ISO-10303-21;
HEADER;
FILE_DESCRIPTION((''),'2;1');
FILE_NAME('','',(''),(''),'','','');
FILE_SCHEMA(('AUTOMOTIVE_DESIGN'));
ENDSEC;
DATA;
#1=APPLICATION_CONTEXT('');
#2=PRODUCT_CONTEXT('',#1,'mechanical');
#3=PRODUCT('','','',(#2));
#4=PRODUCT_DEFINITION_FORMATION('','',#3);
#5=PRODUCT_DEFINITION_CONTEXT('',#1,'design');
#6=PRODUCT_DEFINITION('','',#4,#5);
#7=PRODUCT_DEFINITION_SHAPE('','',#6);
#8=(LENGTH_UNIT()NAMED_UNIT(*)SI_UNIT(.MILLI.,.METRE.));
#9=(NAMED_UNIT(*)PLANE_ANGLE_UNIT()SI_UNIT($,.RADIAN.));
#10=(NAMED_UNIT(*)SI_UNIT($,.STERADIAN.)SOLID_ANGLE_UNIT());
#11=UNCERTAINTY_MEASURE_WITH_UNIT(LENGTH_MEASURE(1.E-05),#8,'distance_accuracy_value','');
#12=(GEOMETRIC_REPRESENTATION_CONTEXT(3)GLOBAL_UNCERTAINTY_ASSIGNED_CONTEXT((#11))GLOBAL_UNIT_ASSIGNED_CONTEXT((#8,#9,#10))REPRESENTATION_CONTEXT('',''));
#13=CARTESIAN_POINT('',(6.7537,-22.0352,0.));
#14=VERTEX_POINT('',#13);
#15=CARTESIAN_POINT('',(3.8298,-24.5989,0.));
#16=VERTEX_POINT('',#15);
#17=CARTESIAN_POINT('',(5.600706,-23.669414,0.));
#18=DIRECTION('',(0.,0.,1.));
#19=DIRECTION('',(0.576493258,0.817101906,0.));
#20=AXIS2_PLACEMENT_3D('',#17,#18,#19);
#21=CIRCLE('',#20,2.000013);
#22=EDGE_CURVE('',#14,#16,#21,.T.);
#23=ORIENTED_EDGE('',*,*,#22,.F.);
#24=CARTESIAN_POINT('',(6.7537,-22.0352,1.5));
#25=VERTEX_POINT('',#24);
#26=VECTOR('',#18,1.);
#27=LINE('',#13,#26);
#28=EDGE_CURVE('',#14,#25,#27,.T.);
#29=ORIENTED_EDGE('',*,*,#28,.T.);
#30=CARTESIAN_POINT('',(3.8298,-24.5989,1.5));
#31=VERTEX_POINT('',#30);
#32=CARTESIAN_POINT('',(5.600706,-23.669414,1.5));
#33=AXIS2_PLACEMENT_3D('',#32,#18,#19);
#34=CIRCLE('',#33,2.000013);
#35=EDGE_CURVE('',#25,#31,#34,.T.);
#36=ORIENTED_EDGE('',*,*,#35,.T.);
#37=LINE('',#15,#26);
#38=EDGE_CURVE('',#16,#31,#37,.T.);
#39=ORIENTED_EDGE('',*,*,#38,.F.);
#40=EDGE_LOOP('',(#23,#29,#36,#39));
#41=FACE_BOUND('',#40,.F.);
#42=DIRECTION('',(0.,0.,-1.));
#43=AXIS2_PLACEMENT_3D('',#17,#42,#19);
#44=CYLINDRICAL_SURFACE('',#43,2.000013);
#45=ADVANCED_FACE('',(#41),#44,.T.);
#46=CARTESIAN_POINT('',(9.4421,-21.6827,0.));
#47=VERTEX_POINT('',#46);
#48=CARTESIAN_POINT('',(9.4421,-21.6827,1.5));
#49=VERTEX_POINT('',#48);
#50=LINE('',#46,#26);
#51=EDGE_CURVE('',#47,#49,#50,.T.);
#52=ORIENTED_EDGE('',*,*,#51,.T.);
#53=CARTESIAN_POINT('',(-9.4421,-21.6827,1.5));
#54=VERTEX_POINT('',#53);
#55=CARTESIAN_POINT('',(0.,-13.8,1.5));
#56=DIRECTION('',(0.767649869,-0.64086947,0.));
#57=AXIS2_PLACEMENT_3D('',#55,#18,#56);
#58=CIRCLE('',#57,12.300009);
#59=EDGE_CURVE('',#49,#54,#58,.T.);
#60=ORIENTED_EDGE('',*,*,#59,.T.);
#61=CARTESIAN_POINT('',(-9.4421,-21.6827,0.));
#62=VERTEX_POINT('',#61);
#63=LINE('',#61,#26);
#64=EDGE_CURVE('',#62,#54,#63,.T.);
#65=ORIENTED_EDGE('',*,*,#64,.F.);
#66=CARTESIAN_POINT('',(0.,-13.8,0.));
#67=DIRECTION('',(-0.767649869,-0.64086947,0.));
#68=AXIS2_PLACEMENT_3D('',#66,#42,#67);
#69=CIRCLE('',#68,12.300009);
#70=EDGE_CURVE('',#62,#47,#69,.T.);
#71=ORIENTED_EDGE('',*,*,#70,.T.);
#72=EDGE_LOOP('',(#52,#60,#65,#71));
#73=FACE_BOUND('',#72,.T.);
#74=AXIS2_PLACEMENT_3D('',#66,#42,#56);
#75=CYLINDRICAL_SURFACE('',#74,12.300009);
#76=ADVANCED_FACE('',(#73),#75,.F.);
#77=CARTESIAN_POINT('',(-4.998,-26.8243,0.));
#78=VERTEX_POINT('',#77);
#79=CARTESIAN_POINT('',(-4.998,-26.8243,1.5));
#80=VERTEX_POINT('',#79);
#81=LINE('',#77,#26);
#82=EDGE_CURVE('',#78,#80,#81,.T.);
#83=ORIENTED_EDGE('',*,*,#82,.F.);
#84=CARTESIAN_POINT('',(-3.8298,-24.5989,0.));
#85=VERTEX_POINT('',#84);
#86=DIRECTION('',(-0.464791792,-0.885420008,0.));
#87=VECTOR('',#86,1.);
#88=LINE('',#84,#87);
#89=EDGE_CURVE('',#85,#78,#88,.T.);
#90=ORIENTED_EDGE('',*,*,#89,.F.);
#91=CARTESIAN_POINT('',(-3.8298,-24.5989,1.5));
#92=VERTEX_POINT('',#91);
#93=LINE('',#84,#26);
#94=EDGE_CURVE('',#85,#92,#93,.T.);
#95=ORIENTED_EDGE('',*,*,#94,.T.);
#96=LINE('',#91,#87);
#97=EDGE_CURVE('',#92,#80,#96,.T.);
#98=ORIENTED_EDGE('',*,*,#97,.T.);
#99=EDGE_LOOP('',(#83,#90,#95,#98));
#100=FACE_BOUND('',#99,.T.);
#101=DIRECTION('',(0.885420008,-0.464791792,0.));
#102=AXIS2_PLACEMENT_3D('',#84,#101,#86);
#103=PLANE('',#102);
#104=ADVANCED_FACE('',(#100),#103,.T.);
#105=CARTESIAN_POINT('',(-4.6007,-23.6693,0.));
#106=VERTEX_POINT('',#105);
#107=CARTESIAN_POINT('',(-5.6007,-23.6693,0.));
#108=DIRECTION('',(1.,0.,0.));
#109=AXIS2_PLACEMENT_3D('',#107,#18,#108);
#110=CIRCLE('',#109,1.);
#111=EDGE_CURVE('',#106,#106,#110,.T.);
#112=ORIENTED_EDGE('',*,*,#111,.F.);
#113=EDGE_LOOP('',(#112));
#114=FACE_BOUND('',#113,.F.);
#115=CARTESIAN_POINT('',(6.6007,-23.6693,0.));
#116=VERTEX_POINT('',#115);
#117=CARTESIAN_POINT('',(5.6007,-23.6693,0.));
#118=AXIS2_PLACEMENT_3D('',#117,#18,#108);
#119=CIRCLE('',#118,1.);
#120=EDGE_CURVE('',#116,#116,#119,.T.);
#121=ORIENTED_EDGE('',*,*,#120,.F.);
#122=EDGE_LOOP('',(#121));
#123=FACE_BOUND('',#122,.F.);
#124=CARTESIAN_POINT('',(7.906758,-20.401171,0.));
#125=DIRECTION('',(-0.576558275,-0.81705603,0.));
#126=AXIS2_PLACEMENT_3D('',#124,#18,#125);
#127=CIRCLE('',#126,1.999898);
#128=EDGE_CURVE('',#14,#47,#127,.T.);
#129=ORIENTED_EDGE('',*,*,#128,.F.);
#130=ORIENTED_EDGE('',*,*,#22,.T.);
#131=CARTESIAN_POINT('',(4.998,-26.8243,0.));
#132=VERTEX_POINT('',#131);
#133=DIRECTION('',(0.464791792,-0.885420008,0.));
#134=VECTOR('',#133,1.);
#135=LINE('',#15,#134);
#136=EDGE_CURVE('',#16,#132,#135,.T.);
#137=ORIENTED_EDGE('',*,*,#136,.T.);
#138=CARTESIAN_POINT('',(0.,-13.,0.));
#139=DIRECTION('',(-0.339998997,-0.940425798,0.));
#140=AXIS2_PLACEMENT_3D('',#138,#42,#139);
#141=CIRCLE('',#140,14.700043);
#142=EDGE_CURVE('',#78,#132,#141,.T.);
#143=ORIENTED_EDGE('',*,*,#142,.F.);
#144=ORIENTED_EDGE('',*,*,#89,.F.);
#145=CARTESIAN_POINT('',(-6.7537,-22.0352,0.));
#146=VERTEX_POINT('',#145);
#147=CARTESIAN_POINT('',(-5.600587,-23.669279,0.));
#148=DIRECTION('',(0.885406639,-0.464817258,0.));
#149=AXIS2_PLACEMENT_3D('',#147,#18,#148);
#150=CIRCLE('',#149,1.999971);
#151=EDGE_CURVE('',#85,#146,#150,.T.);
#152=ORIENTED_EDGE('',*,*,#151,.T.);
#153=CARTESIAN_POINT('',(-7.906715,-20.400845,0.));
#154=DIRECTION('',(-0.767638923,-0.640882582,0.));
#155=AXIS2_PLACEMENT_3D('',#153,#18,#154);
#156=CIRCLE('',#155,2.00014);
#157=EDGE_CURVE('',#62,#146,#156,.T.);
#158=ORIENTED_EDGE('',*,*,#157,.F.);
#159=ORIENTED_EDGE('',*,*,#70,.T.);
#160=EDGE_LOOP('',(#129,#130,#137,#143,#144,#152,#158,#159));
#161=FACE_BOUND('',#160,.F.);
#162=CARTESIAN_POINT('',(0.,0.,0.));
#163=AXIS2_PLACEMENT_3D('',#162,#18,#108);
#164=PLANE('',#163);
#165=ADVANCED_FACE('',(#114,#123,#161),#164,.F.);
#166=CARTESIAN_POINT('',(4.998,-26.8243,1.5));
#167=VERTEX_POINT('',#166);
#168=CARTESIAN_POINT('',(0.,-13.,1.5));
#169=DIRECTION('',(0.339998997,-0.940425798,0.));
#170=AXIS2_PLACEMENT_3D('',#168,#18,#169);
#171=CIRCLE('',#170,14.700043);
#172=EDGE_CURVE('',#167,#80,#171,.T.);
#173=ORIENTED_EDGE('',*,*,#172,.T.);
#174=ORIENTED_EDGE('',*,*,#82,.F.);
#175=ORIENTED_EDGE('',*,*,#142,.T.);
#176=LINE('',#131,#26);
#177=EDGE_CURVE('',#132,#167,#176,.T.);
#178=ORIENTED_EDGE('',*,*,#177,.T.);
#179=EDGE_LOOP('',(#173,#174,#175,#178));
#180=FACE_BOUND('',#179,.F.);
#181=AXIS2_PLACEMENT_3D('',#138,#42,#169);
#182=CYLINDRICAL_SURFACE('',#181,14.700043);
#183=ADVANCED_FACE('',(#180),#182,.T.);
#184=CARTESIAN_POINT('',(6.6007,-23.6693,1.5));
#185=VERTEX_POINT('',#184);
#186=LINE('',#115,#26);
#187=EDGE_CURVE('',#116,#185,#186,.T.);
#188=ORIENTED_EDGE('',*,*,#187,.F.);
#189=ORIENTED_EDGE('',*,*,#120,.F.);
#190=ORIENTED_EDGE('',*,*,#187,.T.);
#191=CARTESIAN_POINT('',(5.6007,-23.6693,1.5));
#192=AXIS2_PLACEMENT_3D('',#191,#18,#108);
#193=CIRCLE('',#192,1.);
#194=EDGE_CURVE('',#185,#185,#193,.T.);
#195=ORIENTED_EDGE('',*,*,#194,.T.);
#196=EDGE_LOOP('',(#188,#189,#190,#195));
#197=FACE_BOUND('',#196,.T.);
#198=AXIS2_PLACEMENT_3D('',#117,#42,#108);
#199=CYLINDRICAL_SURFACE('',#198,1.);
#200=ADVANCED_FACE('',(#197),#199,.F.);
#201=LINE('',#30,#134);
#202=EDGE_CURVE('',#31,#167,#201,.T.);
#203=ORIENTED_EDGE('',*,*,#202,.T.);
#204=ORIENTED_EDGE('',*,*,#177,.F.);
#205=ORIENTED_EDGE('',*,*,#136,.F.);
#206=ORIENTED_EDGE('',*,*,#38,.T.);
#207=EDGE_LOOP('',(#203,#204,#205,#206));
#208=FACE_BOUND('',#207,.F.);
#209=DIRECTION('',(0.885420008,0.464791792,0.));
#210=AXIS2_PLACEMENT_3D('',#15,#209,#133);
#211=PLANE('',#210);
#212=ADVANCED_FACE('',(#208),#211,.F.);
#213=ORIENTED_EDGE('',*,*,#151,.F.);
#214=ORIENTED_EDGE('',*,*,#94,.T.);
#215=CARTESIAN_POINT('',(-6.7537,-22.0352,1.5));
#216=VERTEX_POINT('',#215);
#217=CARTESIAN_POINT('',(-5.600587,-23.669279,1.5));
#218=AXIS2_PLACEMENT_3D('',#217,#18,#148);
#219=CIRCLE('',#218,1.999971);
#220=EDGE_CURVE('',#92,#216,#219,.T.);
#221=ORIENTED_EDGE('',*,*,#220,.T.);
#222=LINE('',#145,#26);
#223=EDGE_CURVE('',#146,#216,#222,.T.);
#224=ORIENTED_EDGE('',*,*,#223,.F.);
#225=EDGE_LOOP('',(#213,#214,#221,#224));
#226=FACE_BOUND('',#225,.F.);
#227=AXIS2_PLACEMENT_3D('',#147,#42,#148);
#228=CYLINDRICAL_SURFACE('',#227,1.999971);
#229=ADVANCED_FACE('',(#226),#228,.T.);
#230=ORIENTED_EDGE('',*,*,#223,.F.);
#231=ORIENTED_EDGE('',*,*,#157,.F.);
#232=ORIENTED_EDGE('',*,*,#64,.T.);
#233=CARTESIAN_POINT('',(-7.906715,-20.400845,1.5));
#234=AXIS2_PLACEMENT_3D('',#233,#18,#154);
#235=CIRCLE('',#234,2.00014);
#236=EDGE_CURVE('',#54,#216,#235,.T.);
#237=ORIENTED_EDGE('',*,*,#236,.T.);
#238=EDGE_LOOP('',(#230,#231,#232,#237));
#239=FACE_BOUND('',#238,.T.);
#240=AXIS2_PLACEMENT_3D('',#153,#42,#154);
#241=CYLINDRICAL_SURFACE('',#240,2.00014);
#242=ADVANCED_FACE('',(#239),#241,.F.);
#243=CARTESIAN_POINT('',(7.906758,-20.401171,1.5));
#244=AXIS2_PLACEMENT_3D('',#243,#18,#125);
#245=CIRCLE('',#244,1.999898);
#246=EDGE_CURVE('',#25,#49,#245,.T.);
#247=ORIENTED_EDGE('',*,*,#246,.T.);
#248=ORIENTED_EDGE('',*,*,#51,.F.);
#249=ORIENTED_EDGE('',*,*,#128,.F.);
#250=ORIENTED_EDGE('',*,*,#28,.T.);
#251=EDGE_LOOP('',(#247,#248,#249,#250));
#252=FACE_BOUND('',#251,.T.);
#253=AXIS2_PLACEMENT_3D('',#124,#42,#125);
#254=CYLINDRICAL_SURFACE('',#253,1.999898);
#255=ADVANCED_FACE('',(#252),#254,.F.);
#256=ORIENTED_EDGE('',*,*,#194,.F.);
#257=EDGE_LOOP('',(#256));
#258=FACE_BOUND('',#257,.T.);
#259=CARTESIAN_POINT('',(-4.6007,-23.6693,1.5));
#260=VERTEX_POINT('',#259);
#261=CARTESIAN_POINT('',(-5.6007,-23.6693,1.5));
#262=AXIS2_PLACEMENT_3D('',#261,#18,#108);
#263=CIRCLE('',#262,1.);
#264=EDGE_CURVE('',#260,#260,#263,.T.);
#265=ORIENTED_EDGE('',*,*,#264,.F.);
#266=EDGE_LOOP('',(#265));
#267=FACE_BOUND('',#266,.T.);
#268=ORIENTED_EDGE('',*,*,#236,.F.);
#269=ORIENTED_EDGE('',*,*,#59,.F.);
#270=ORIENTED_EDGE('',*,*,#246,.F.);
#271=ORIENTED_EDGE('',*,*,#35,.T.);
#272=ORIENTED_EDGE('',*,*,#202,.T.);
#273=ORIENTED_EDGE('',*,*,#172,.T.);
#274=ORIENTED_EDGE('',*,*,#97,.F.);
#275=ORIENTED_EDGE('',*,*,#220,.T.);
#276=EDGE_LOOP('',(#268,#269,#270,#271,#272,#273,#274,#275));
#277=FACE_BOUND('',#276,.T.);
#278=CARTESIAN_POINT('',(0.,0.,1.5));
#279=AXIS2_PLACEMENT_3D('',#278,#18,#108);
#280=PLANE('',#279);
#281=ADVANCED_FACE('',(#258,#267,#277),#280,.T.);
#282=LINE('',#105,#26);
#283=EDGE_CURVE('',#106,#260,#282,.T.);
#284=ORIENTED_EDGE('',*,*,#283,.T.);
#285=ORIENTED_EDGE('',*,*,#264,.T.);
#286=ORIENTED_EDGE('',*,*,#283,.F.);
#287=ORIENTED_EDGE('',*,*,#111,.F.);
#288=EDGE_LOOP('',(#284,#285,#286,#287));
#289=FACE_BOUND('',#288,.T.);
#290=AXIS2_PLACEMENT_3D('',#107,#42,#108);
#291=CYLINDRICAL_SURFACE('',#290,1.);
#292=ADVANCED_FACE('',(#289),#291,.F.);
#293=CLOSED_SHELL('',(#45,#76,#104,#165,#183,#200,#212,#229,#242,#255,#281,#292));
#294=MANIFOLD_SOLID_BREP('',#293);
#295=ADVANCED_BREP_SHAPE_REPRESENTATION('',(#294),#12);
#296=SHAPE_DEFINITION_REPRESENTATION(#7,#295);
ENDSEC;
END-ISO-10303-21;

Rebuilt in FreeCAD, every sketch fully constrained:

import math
import FreeCAD as App
import Part
import Sketcher
from FreeCAD import Vector

doc = App.newDocument("Part")
body = doc.addObject("PartDesign::Body", "Body")

# Sketch on XY plane
sketch1 = body.newObject("Sketcher::SketchObject", "Sketch")
sketch1.AttachmentSupport = (doc.getObject("XY_Plane"), [""])
sketch1.MapMode = "FlatFace"
sketch1.addGeometry([
    Part.ArcOfCircle(Part.Circle(Vector(7.9, -20.4, 0), Vector(0, 0, 1), 2), math.radians(-125), math.radians(-40)),  # 0
    Part.ArcOfCircle(Part.Circle(Vector(5.6, -23.7, 0), Vector(0, 0, 1), 2), math.radians(55), math.radians(208)),  # 1
    Part.LineSegment(Vector(3.8, -24.6, 0), Vector(5, -26.8, 0)),  # 2
    Part.ArcOfCircle(Part.Circle(Vector(0, -13, 0), Vector(0, 0, 1), 14.7), math.radians(-70), math.radians(250)),  # 3
    Part.LineSegment(Vector(-5, -26.8, 0), Vector(-3.8, -24.6, 0)),  # 4
    Part.ArcOfCircle(Part.Circle(Vector(-5.6, -23.7, 0), Vector(0, 0, 1), 2), math.radians(-28), math.radians(125)),  # 5
    Part.ArcOfCircle(Part.Circle(Vector(-7.9, -20.4, 0), Vector(0, 0, 1), 2), math.radians(-140), math.radians(-55)),  # 6
    Part.ArcOfCircle(Part.Circle(Vector(0, -13.8, 0), Vector(0, 0, 1), 12.3), math.radians(-40), math.radians(220)),  # 7
    Part.Circle(Vector(5.6, -23.7, 0), Vector(0, 0, 1), 1),  # 8
    Part.Circle(Vector(-5.6, -23.7, 0), Vector(0, 0, 1), 1),  # 9
], False)
sketch1.addConstraint([
    Sketcher.Constraint("Tangent", 0, 1, 1, 1),
    Sketcher.Constraint("Tangent", 1, 2, 2, 1),
    Sketcher.Constraint("Coincident", 2, 2, 3, 1),
    Sketcher.Constraint("Coincident", 3, 2, 4, 1),
    Sketcher.Constraint("Tangent", 4, 2, 5, 1),
    Sketcher.Constraint("Tangent", 5, 2, 6, 2),
    Sketcher.Constraint("Tangent", 6, 1, 7, 2),
    Sketcher.Constraint("Tangent", 7, 1, 0, 2),
    Sketcher.Constraint("Coincident", 8, 3, 1, 3),
    Sketcher.Constraint("Coincident", 9, 3, 5, 3),
    Sketcher.Constraint("Equal", 0, 1),
    Sketcher.Constraint("Equal", 1, 5),
    Sketcher.Constraint("Equal", 5, 6),
    Sketcher.Constraint("Equal", 8, 9),
    Sketcher.Constraint("Symmetric", 1, 3, 5, 3, -2),
    Sketcher.Constraint("Symmetric", 2, 2, 3, 2, -2),
    Sketcher.Constraint("PointOnObject", 7, 3, -2),
    Sketcher.Constraint("Diameter", 8, 2.0),
    Sketcher.Constraint("Radius", 0, 2.0),
    Sketcher.Constraint("Radius", 3, 14.7),
    Sketcher.Constraint("DistanceY", 3, 3, -1, 1, 13.0),
    Sketcher.Constraint("Radius", 7, 12.3),
    Sketcher.Constraint("DistanceY", 7, 3, 3, 3, 0.8),
    Sketcher.Constraint("DistanceX", -1, 1, 2, 2, 4.998),
    Sketcher.Constraint("DistanceX", -1, 1, 1, 2, 3.83),
    Sketcher.Constraint("DistanceY", 0, 3, -1, 1, 20.401),
])
pad1 = body.newObject("PartDesign::Pad", "Pad")
pad1.Profile = sketch1
pad1.Length = 1.5

doc.recompute()
